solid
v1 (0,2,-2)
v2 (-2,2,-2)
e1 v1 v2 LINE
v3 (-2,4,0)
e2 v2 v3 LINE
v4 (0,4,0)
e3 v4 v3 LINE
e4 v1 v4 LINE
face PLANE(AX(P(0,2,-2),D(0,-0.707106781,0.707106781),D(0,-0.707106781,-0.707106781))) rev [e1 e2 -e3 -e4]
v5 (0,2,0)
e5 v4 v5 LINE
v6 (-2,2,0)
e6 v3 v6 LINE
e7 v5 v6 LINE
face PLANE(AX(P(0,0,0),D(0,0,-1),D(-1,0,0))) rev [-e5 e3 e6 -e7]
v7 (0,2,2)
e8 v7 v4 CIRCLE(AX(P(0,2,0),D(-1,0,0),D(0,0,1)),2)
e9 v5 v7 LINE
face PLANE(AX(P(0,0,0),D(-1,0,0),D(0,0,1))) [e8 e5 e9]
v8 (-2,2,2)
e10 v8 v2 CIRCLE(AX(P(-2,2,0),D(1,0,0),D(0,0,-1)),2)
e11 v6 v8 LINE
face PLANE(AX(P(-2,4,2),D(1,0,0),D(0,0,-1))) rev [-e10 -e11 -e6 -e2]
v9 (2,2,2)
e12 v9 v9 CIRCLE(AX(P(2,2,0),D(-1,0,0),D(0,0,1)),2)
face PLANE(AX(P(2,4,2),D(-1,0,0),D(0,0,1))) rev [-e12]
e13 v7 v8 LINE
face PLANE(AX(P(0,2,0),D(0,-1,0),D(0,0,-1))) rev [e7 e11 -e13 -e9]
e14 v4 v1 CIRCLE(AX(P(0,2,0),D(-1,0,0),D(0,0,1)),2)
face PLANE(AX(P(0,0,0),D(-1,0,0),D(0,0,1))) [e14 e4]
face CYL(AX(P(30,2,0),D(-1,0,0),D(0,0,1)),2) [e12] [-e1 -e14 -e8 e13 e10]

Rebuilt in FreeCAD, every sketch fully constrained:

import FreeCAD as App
import Part
import Sketcher
from FreeCAD import Vector
Q = App.Units.Quantity


def add_polygon(sketch, points):
    """Adds a closed chain of lines whose ends are joined by coincident constraints."""
    first, n = sketch.GeometryCount, len(points)
    for a, b in zip(points, points[1:] + points[:1]):
        sketch.addGeometry(Part.LineSegment(App.Vector(*a, 0), App.Vector(*b, 0)), False)
    for i in range(n):
        sketch.addConstraint(Sketcher.Constraint("Coincident", first + i, 2, first + (i + 1) % n, 1))

doc = App.newDocument("Part")
body = doc.addObject("PartDesign::Body", "Body")

# Sketch on XZ plane
sketch1 = body.newObject("Sketcher::SketchObject", "Sketch")
sketch1.AttachmentSupport = (doc.getObject("XZ_Plane"), [""])
sketch1.MapMode = "FlatFace"
add_polygon(sketch1, [(-2, -2), (-2, 2), (2, 2), (2, -2)])  # lines 0-3
sketch1.addConstraint([
    Sketcher.Constraint("Vertical", 0),
    Sketcher.Constraint("Horizontal", 1),
    Sketcher.Constraint("Vertical", 2),
    Sketcher.Constraint("Horizontal", 3),
    Sketcher.Constraint("Symmetric", 0, 2, 2, 2, -1, 1),
    Sketcher.Constraint("Equal", 3, 0),
    Sketcher.Constraint("DistanceX", 1, 1, 1, 2, Q("4 mm")),
])
pad1 = body.newObject("PartDesign::Pad", "Pad")
pad1.Profile = sketch1
pad1.Length = 4
pad1.Reversed = True

# Sketch on YZ plane
sketch2 = body.newObject("Sketcher::SketchObject", "Sketch001")
sketch2.AttachmentSupport = (doc.getObject("YZ_Plane"), [""])
sketch2.MapMode = "FlatFace"
sketch2.AttachmentOffset = App.Placement(Vector(0, 0, -2), App.Rotation())
add_polygon(sketch2, [(4, -2), (2, -2), (4, 0)])  # lines 0-2
add_polygon(sketch2, [(4, 0), (2, 0), (2, 2), (4, 2)])  # lines 3-6
sketch2.addConstraint([
    Sketcher.Constraint("Horizontal", 0),
    Sketcher.Constraint("Vertical", 2),
    Sketcher.Constraint("Horizontal", 3),
    Sketcher.Constraint("Vertical", 4),
    Sketcher.Constraint("Horizontal", 5),
    Sketcher.Constraint("Vertical", 6),
    Sketcher.Constraint("Coincident", 6, 2, 1, 2),
    Sketcher.Constraint("Symmetric", 0, 2, 4, 2, -1),
    Sketcher.Constraint("PointOnObject", 1, 2, -1),
    Sketcher.Constraint("Equal", 5, 2),
    Sketcher.Constraint("DistanceX", 0, 2, 0, 1, Q("2 mm")),
    Sketcher.Constraint("DistanceX", -1, 1, 0, 2, Q("2 mm")),
])
pocket1 = body.newObject("PartDesign::Pocket", "Pocket")
pocket1.Profile = sketch2
pocket1.Length = 2
pocket1.Reversed = True

# Sketch on YZ plane
sketch3 = body.newObject("Sketcher::SketchObject", "Sketch002")
sketch3.AttachmentSupport = (doc.getObject("YZ_Plane"), [""])
sketch3.MapMode = "FlatFace"
sketch3.addGeometry([
    Part.Circle(Vector(2, 0, 0), Vector(0, 0, 1), 2.8),
    Part.Circle(Vector(2, 0, 0), Vector(0, 0, 1), 2),
], False)
sketch3.addConstraint([
    Sketcher.Constraint("Coincident", 1, 3, 0, 3),
    Sketcher.Constraint("PointOnObject", 0, 3, -1),
    Sketcher.Constraint("Diameter", 1, Q("4 mm")),
    Sketcher.Constraint("DistanceX", -1, 1, 0, 3, Q("2 mm")),
    Sketcher.Constraint("Diameter", 0, Q("5.656854 mm")),
])
pocket2 = body.newObject("PartDesign::Pocket", "Pocket001")
pocket2.Profile = sketch3
pocket2.Length = 60
pocket2.Midplane = True

doc.recompute()
